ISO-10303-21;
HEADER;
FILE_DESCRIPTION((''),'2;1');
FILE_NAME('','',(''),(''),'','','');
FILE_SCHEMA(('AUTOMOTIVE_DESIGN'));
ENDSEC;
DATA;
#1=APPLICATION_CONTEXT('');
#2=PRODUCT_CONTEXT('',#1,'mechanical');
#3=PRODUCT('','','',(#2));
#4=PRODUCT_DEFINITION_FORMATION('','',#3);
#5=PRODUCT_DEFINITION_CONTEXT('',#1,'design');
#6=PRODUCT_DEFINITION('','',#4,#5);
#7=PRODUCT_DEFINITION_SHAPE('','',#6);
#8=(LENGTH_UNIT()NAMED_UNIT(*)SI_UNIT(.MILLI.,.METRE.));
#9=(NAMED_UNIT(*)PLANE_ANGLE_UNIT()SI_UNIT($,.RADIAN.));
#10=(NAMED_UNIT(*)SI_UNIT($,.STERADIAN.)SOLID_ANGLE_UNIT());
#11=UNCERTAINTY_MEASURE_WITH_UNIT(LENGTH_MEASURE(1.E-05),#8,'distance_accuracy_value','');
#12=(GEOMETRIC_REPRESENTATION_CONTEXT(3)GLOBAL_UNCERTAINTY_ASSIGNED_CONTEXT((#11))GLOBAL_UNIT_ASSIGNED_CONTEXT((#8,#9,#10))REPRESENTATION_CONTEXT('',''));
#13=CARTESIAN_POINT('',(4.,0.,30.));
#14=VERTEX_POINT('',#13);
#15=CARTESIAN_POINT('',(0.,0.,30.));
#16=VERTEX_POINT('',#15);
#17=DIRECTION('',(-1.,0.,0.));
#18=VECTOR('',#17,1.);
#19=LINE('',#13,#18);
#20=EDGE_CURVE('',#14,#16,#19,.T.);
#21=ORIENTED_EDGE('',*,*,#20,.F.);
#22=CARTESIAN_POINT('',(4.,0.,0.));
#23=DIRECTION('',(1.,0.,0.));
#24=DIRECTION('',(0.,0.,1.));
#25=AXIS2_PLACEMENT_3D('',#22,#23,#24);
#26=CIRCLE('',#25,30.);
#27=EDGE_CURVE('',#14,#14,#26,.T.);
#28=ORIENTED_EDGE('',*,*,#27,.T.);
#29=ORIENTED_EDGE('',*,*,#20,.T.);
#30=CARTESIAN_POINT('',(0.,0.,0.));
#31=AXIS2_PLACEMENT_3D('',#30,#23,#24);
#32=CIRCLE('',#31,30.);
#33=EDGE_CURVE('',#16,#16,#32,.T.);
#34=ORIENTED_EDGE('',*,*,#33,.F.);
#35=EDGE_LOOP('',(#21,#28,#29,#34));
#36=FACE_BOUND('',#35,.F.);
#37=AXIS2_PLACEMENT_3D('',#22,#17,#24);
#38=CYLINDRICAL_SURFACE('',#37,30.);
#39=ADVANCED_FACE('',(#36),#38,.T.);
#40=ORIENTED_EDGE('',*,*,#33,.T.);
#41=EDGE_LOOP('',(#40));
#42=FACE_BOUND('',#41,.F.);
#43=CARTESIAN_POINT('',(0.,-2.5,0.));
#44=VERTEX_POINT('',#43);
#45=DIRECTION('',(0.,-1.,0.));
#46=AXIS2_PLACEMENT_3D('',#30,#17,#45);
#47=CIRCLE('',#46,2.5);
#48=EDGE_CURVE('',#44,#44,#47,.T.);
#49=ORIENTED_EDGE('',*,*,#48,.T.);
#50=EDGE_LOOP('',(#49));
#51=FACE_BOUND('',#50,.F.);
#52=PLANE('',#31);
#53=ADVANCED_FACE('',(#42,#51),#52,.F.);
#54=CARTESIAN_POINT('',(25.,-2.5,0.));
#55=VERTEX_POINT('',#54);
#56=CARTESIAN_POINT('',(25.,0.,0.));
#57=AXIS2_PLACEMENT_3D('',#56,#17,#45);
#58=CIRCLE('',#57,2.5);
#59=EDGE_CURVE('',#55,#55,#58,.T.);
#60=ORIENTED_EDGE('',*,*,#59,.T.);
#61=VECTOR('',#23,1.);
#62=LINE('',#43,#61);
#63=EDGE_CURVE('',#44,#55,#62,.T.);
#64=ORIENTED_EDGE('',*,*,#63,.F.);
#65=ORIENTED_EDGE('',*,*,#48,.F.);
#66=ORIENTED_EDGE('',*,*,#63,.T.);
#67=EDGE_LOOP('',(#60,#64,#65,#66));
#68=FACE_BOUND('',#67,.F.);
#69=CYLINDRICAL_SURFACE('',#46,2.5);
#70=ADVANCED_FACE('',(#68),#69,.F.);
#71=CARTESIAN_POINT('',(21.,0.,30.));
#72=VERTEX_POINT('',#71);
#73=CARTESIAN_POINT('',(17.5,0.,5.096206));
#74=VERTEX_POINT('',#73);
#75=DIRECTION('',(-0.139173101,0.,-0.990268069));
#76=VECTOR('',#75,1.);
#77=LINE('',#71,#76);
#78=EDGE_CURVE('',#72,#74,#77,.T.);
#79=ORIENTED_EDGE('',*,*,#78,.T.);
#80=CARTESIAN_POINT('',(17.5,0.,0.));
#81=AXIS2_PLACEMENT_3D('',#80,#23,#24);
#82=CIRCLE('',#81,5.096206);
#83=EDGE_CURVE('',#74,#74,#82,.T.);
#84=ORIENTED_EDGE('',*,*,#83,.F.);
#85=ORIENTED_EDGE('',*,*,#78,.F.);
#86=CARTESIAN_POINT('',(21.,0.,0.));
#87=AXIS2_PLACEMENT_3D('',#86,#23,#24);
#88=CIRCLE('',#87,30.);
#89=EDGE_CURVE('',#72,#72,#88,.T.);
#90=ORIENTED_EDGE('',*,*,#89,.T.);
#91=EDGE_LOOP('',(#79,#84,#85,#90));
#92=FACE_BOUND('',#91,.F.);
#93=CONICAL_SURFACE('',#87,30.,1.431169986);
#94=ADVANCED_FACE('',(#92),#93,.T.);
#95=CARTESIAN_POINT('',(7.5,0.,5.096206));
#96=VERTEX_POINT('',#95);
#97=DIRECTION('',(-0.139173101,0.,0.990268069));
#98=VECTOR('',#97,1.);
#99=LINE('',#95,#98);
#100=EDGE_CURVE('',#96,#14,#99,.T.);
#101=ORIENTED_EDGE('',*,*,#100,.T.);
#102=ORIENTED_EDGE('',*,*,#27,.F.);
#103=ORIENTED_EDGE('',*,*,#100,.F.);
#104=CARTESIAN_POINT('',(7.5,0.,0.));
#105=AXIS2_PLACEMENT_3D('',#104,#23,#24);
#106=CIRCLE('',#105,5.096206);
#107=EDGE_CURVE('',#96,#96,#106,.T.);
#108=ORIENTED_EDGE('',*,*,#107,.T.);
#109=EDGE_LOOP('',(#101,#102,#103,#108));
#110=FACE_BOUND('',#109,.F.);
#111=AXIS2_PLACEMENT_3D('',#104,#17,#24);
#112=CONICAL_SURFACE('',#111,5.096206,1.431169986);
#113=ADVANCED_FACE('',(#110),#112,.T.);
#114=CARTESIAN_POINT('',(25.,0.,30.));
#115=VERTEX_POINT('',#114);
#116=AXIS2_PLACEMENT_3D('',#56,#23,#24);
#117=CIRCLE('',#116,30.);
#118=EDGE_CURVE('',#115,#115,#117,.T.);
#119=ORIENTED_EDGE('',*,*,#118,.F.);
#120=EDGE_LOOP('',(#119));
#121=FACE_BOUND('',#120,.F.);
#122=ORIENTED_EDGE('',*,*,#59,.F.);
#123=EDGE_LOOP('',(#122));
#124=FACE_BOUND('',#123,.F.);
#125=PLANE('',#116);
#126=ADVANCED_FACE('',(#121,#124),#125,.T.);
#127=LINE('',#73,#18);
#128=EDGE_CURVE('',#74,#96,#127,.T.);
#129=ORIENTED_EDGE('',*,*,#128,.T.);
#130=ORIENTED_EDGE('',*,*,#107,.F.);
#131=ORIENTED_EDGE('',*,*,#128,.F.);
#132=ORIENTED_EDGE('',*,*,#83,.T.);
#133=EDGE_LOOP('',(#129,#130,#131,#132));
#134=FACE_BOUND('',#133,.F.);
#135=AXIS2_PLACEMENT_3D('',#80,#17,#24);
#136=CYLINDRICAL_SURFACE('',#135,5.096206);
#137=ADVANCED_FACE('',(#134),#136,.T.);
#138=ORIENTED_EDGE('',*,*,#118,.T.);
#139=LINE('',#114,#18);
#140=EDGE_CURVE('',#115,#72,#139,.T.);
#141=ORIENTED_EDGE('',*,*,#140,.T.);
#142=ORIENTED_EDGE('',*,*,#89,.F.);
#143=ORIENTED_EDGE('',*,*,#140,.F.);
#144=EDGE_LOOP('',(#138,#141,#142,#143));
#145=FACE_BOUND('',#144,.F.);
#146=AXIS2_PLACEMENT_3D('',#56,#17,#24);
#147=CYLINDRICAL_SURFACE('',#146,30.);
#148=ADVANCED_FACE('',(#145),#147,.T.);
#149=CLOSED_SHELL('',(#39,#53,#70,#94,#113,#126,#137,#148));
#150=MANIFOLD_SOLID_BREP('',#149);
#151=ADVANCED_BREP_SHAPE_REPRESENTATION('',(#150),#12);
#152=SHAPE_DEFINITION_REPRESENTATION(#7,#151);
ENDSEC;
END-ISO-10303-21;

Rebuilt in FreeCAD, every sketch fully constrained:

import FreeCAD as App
import Part
import Sketcher
from FreeCAD import Vector
Q = App.Units.Quantity


def add_polygon(sketch, points):
    """Adds a closed chain of lines whose ends are joined by coincident constraints."""
    first, n = sketch.GeometryCount, len(points)
    for a, b in zip(points, points[1:] + points[:1]):
        sketch.addGeometry(Part.LineSegment(App.Vector(*a, 0), App.Vector(*b, 0)), False)
    for i in range(n):
        sketch.addConstraint(Sketcher.Constraint("Coincident", first + i, 2, first + (i + 1) % n, 1))

doc = App.newDocument("Part")
body = doc.addObject("PartDesign::Body", "Body")

# Sketch on XZ plane
sketch1 = doc.addObject("Sketcher::SketchObject", "Sketch")
body.addObject(sketch1)
sketch1.AttachmentSupport = (doc.XZ_Plane, [""])
sketch1.MapMode = "FlatFace"
add_polygon(sketch1, [(0, 30), (0, 0), (25, 0), (25, 30), (21, 30), (17.5, 5.1), (7.5, 5.1), (4, 30)])  # lines 0-7
sketch1.addConstraint([
    Sketcher.Constraint("Vertical", 0),
    Sketcher.Constraint("Horizontal", 1),
    Sketcher.Constraint("Vertical", 2),
    Sketcher.Constraint("Horizontal", 3),
    Sketcher.Constraint("Horizontal", 5),
    Sketcher.Constraint("Horizontal", 7),
    Sketcher.Constraint("Coincident", 0, 2, -1, 1),
    Sketcher.Constraint("Horizontal", 3, 2, 6, 2),
    Sketcher.Constraint("Equal", 3, 7),
    Sketcher.Constraint("Equal", 4, 6),
    Sketcher.Constraint("DistanceX", 1, 1, 1, 2, 25.0),
    Sketcher.Constraint("DistanceX", 3, 2, 3, 1, 4.0),
    Sketcher.Constraint("DistanceX", 5, 2, 5, 1, 10.0),
    Sketcher.Constraint("DistanceY", 0, 2, 0, 1, 30.0),
    Sketcher.Constraint("Angle", 4, Q("-98 deg")),
])
revolution = doc.addObject("PartDesign::Revolution", "Revolution")
body.addObject(revolution)
revolution.Profile = sketch1
revolution.ReferenceAxis = (sketch1, ["H_Axis"])
revolution.Angle = 360

# Sketch on YZ plane
sketch2 = doc.addObject("Sketcher::SketchObject", "Sketch001")
body.addObject(sketch2)
sketch2.AttachmentSupport = (doc.YZ_Plane, [""])
sketch2.MapMode = "FlatFace"
sketch2.addGeometry(Part.Circle(Vector(0, 0, 0), Vector(0, 0, 1), 2.5), False)
sketch2.addConstraint([
    Sketcher.Constraint("Coincident", 0, 3, -1, 1),
    Sketcher.Constraint("Diameter", 0, 5.0),
])
pocket1 = doc.addObject("PartDesign::Pocket", "Pocket")
body.addObject(pocket1)
pocket1.Profile = sketch2
pocket1.Type = "ThroughAll"
pocket1.Reversed = True

doc.recompute()
